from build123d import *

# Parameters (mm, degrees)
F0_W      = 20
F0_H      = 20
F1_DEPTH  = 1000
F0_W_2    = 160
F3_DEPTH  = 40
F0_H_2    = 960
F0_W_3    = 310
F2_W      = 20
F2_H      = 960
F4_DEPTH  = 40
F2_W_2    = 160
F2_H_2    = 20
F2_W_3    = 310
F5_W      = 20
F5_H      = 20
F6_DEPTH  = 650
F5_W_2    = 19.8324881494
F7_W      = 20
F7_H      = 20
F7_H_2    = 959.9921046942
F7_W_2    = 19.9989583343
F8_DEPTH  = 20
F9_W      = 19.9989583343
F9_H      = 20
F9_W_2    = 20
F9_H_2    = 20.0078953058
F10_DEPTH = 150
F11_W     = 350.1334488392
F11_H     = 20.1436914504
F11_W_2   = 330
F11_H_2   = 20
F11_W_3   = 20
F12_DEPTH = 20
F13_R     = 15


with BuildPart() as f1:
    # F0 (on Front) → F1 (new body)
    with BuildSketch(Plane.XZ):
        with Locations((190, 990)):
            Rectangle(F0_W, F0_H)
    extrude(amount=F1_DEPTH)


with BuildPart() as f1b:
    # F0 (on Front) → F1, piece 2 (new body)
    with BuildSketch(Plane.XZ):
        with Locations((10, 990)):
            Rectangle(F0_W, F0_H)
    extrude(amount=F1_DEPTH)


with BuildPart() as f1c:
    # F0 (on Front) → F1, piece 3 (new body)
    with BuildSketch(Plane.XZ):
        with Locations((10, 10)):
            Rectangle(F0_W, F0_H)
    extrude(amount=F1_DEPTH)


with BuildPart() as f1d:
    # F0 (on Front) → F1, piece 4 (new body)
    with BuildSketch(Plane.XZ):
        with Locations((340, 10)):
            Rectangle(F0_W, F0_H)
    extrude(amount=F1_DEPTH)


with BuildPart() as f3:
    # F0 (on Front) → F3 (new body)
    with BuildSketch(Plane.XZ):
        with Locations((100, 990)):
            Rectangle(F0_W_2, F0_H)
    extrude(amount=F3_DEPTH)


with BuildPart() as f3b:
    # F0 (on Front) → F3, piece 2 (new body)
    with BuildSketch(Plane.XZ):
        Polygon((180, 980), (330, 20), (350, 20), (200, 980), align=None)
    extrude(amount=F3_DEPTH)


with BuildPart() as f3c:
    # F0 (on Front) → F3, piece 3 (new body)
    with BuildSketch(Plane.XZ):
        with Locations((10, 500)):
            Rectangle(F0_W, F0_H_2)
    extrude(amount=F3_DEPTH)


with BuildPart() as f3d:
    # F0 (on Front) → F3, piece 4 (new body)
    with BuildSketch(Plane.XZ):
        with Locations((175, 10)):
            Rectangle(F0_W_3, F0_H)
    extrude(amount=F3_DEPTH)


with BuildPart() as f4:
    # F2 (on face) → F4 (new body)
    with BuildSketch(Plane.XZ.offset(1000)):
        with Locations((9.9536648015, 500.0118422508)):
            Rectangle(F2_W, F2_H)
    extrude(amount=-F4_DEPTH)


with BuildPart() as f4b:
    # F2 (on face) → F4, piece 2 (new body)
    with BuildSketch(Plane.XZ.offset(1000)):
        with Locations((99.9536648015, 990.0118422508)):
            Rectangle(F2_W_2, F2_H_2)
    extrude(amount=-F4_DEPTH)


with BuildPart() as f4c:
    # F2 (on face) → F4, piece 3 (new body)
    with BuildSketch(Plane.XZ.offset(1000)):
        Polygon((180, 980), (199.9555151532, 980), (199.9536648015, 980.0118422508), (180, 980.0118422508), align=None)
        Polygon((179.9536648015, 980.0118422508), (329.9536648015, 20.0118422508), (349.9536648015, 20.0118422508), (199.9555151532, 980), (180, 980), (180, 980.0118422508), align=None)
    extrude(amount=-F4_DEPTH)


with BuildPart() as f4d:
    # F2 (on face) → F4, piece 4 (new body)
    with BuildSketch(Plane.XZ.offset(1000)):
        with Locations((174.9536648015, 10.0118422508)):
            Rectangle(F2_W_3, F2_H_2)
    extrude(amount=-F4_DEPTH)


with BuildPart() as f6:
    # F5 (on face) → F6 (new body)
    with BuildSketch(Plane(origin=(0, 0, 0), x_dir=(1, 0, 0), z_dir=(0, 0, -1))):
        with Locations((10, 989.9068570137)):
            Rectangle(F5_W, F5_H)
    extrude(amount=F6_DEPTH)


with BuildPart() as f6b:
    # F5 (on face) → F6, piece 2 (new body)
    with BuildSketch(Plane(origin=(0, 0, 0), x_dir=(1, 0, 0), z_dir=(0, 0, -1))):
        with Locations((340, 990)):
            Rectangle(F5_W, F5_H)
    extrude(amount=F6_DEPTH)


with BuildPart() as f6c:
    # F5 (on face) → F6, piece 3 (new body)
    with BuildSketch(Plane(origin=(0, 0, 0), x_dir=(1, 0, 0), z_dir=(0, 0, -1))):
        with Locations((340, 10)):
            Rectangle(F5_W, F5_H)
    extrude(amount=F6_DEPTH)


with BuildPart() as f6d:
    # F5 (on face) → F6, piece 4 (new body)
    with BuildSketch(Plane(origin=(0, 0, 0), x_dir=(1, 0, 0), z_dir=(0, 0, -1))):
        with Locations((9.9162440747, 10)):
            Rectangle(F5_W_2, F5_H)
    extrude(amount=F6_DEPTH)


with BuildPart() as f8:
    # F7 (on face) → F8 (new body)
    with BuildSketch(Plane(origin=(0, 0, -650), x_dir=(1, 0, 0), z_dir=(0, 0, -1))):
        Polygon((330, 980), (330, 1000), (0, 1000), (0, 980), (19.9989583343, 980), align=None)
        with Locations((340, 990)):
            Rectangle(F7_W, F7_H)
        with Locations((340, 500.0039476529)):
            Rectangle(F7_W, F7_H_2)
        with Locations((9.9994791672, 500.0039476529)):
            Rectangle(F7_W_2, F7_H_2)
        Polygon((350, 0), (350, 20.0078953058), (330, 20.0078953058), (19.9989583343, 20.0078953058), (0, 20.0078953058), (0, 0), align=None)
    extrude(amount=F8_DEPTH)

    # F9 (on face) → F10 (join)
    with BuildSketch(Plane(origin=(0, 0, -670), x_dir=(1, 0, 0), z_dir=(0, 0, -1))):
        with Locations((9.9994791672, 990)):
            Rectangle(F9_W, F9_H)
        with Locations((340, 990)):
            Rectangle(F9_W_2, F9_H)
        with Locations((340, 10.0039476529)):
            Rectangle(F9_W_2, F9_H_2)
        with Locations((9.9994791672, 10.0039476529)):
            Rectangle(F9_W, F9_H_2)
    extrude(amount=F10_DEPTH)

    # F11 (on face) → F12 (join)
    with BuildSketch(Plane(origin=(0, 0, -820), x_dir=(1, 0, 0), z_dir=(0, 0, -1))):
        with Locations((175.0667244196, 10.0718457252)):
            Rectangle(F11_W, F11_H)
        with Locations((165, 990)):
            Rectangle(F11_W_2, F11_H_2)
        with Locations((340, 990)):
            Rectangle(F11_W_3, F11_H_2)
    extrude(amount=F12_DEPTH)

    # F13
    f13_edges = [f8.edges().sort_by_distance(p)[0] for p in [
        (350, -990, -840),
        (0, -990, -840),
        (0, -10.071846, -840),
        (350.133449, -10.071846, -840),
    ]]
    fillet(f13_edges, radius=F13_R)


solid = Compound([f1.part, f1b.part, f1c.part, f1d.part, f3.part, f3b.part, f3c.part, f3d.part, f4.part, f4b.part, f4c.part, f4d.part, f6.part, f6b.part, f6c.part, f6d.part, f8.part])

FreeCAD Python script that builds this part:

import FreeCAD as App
import Part
import Sketcher

V = App.Vector
Q = App.Units.Quantity


def edges_at(feature, points):
    """Names of the edges that pass closest to the given points."""
    edges = feature.Shape.Edges
    near = lambda p: min(range(len(edges)), key=lambda i: edges[i].distToShape(Part.Vertex(*p))[0])
    return sorted({f"Edge{near(p) + 1}" for p in points})


def add_polygon(sketch, points):
    """Adds a closed chain of lines whose ends are joined by coincident constraints."""
    first, n = sketch.GeometryCount, len(points)
    for a, b in zip(points, points[1:] + points[:1]):
        sketch.addGeometry(Part.LineSegment(App.Vector(*a, 0), App.Vector(*b, 0)), False)
    for i in range(n):
        sketch.addConstraint(Sketcher.Constraint("Coincident", first + i, 2, first + (i + 1) % n, 1))

doc = App.newDocument("Part")
body = doc.addObject("PartDesign::Body", "Body")

sketch1 = body.newObject("Sketcher::SketchObject", "Sketch")
sketch1.AttachmentSupport = (doc.getObject("XZ_Plane"), [""])
sketch1.MapMode = "FlatFace"
add_polygon(sketch1, [(180, 1000), (180, 980), (200, 980), (200, 1000)])
sketch1.addConstraint([
    Sketcher.Constraint("Vertical", 0),
    Sketcher.Constraint("Horizontal", 1),
    Sketcher.Constraint("Vertical", 2),
    Sketcher.Constraint("Horizontal", 3),
    Sketcher.Constraint("Equal", 3, 0),
    Sketcher.Constraint("DistanceX", 1, 1, 1, 2, Q("20 mm")),
    Sketcher.Constraint("DistanceX", -1, 1, 0, 2, Q("180 mm")),
    Sketcher.Constraint("DistanceY", -1, 1, 0, 2, Q("980 mm")),
])
pad1 = body.newObject("PartDesign::Pad", "Pad")
pad1.Profile = sketch1
pad1.Length = 1000
body2 = doc.addObject("PartDesign::Body", "Body001")

sketch2 = body2.newObject("Sketcher::SketchObject", "Sketch001")
sketch2.AttachmentSupport = (doc.getObject("XZ_Plane001"), [""])
sketch2.MapMode = "FlatFace"
add_polygon(sketch2, [(0, 1000), (0, 980), (20, 980), (20, 1000)])
sketch2.addConstraint([
    Sketcher.Constraint("Vertical", 0),
    Sketcher.Constraint("Horizontal", 1),
    Sketcher.Constraint("Vertical", 2),
    Sketcher.Constraint("Horizontal", 3),
    Sketcher.Constraint("PointOnObject", 0, 2, -2),
    Sketcher.Constraint("Equal", 3, 0),
    Sketcher.Constraint("DistanceX", 1, 1, 1, 2, Q("20 mm")),
    Sketcher.Constraint("DistanceY", -1, 1, 0, 2, Q("980 mm")),
])
pad2 = body2.newObject("PartDesign::Pad", "Pad001")
pad2.Profile = sketch2
pad2.Length = 1000
body3 = doc.addObject("PartDesign::Body", "Body002")

sketch3 = body3.newObject("Sketcher::SketchObject", "Sketch002")
sketch3.AttachmentSupport = (doc.getObject("XZ_Plane002"), [""])
sketch3.MapMode = "FlatFace"
add_polygon(sketch3, [(0, 20), (0, 0), (20, 0), (20, 20)])
sketch3.addConstraint([
    Sketcher.Constraint("Vertical", 0),
    Sketcher.Constraint("Horizontal", 1),
    Sketcher.Constraint("Vertical", 2),
    Sketcher.Constraint("Horizontal", 3),
    Sketcher.Constraint("Coincident", 0, 2, -1, 1),
    Sketcher.Constraint("Equal", 3, 0),
    Sketcher.Constraint("DistanceX", 1, 1, 1, 2, Q("20 mm")),
])
pad3 = body3.newObject("PartDesign::Pad", "Pad002")
pad3.Profile = sketch3
pad3.Length = 1000
body4 = doc.addObject("PartDesign::Body", "Body003")

sketch4 = body4.newObject("Sketcher::SketchObject", "Sketch003")
sketch4.AttachmentSupport = (doc.getObject("XZ_Plane003"), [""])
sketch4.MapMode = "FlatFace"
add_polygon(sketch4, [(330, 20), (330, 0), (350, 0), (350, 20)])
sketch4.addConstraint([
    Sketcher.Constraint("Vertical", 0),
    Sketcher.Constraint("Horizontal", 1),
    Sketcher.Constraint("Vertical", 2),
    Sketcher.Constraint("Horizontal", 3),
    Sketcher.Constraint("PointOnObject", 0, 2, -1),
    Sketcher.Constraint("Equal", 3, 0),
    Sketcher.Constraint("DistanceX", 1, 1, 1, 2, Q("20 mm")),
    Sketcher.Constraint("DistanceX", -1, 1, 0, 2, Q("330 mm")),
])
pad4 = body4.newObject("PartDesign::Pad", "Pad003")
pad4.Profile = sketch4
pad4.Length = 1000
body5 = doc.addObject("PartDesign::Body", "Body004")

sketch5 = body5.newObject("Sketcher::SketchObject", "Sketch004")
sketch5.AttachmentSupport = (doc.getObject("XZ_Plane004"), [""])
sketch5.MapMode = "FlatFace"
add_polygon(sketch5, [(20, 1000), (20, 980), (180, 980), (180, 1000)])
sketch5.addConstraint([
    Sketcher.Constraint("Vertical", 0),
    Sketcher.Constraint("Horizontal", 1),
    Sketcher.Constraint("Vertical", 2),
    Sketcher.Constraint("Horizontal", 3),
    Sketcher.Constraint("DistanceX", 1, 1, 1, 2, Q("160 mm")),
    Sketcher.Constraint("DistanceY", 0, 2, 0, 1, Q("20 mm")),
    Sketcher.Constraint("DistanceX", -1, 1, 0, 2, Q("20 mm")),
    Sketcher.Constraint("DistanceY", -1, 1, 0, 2, Q("980 mm")),
])
pad5 = body5.newObject("PartDesign::Pad", "Pad004")
pad5.Profile = sketch5
pad5.Length = 40
body6 = doc.addObject("PartDesign::Body", "Body005")

sketch6 = body6.newObject("Sketcher::SketchObject", "Sketch005")
sketch6.AttachmentSupport = (doc.getObject("XZ_Plane005"), [""])
sketch6.MapMode = "FlatFace"
add_polygon(sketch6, [(180, 980), (330, 20), (350, 20), (200, 980)])
sketch6.addConstraint([
    Sketcher.Constraint("Horizontal", 1),
    Sketcher.Constraint("Horizontal", 3),
    Sketcher.Constraint("Parallel", 0, 2),
    Sketcher.Constraint("DistanceX", 1, 1, 1, 2, Q("20 mm")),
    Sketcher.Constraint("DistanceX", -1, 1, 0, 2, Q("330 mm")),
    Sketcher.Constraint("DistanceY", -1, 1, 0, 2, Q("20 mm")),
    Sketcher.Constraint("DistanceX", -1, 1, 2, 2, Q("200 mm")),
    Sketcher.Constraint("DistanceY", -1, 1, 2, 2, Q("980 mm")),
])
pad6 = body6.newObject("PartDesign::Pad", "Pad005")
pad6.Profile = sketch6
pad6.Length = 40
body7 = doc.addObject("PartDesign::Body", "Body006")

sketch7 = body7.newObject("Sketcher::SketchObject", "Sketch006")
sketch7.AttachmentSupport = (doc.getObject("XZ_Plane006"), [""])
sketch7.MapMode = "FlatFace"
add_polygon(sketch7, [(0, 980), (0, 20), (20, 20), (20, 980)])
sketch7.addConstraint([
    Sketcher.Constraint("Vertical", 0),
    Sketcher.Constraint("Horizontal", 1),
    Sketcher.Constraint("Vertical", 2),
    Sketcher.Constraint("Horizontal", 3),
    Sketcher.Constraint("PointOnObject", 0, 2, -2),
    Sketcher.Constraint("DistanceX", 1, 1, 1, 2, Q("20 mm")),
    Sketcher.Constraint("DistanceY", 0, 2, 0, 1, Q("960 mm")),
    Sketcher.Constraint("DistanceY", -1, 1, 0, 2, Q("20 mm")),
])
pad7 = body7.newObject("PartDesign::Pad", "Pad006")
pad7.Profile = sketch7
pad7.Length = 40
body8 = doc.addObject("PartDesign::Body", "Body007")

sketch8 = body8.newObject("Sketcher::SketchObject", "Sketch007")
sketch8.AttachmentSupport = (doc.getObject("XZ_Plane007"), [""])
sketch8.MapMode = "FlatFace"
add_polygon(sketch8, [(20, 20), (20, 0), (330, 0), (330, 20)])
sketch8.addConstraint([
    Sketcher.Constraint("Vertical", 0),
    Sketcher.Constraint("Horizontal", 1),
    Sketcher.Constraint("Vertical", 2),
    Sketcher.Constraint("Horizontal", 3),
    Sketcher.Constraint("PointOnObject", 0, 2, -1),
    Sketcher.Constraint("DistanceX", 1, 1, 1, 2, Q("310 mm")),
    Sketcher.Constraint("DistanceY", 0, 2, 0, 1, Q("20 mm")),
    Sketcher.Constraint("DistanceX", -1, 1, 0, 2, Q("20 mm")),
])
pad8 = body8.newObject("PartDesign::Pad", "Pad007")
pad8.Profile = sketch8
pad8.Length = 40
body9 = doc.addObject("PartDesign::Body", "Body008")

sketch9 = body9.newObject("Sketcher::SketchObject", "Sketch008")
sketch9.AttachmentSupport = (doc.getObject("XZ_Plane008"), [""])
sketch9.MapMode = "FlatFace"
sketch9.AttachmentOffset = App.Placement(V(0, 0, 1000), App.Rotation())
add_polygon(sketch9, [(-0.046335, 980.011842), (-0.046335, 20.011842), (19.953665, 20.011842), (19.953665, 980.011842)])
sketch9.addConstraint([
    Sketcher.Constraint("Vertical", 0),
    Sketcher.Constraint("Horizontal", 1),
    Sketcher.Constraint("Vertical", 2),
    Sketcher.Constraint("Horizontal", 3),
    Sketcher.Constraint("DistanceX", 1, 1, 1, 2, Q("20 mm")),
    Sketcher.Constraint("DistanceY", 0, 2, 0, 1, Q("960 mm")),
    Sketcher.Constraint("DistanceX", 0, 2, -1, 1, Q("0.046335 mm")),
    Sketcher.Constraint("DistanceY", -1, 1, 0, 2, Q("20.011842 mm")),
])
pad9 = body9.newObject("PartDesign::Pad", "Pad008")
pad9.Profile = sketch9
pad9.Length = 40
pad9.Reversed = True
body10 = doc.addObject("PartDesign::Body", "Body009")

sketch10 = body10.newObject("Sketcher::SketchObject", "Sketch009")
sketch10.AttachmentSupport = (doc.getObject("XZ_Plane009"), [""])
sketch10.MapMode = "FlatFace"
sketch10.AttachmentOffset = App.Placement(V(0, 0, 1000), App.Rotation())
add_polygon(sketch10, [(19.953665, 1000.011842), (19.953665, 980.011842), (179.953665, 980.011842), (179.953665, 1000.011842)])
sketch10.addConstraint([
    Sketcher.Constraint("Vertical", 0),
    Sketcher.Constraint("Horizontal", 1),
    Sketcher.Constraint("Vertical", 2),
    Sketcher.Constraint("Horizontal", 3),
    Sketcher.Constraint("DistanceX", 1, 1, 1, 2, Q("160 mm")),
    Sketcher.Constraint("DistanceY", 0, 2, 0, 1, Q("20 mm")),
    Sketcher.Constraint("DistanceX", -1, 1, 0, 2, Q("19.953665 mm")),
    Sketcher.Constraint("DistanceY", -1, 1, 0, 2, Q("980.011842 mm")),
])
pad10 = body10.newObject("PartDesign::Pad", "Pad009")
pad10.Profile = sketch10
pad10.Length = 40
pad10.Reversed = True
body11 = doc.addObject("PartDesign::Body", "Body010")

sketch11 = body11.newObject("Sketcher::SketchObject", "Sketch010")
sketch11.AttachmentSupport = (doc.getObject("XZ_Plane010"), [""])
sketch11.MapMode = "FlatFace"
sketch11.AttachmentOffset = App.Placement(V(0, 0, 1000), App.Rotation())
add_polygon(sketch11, [(199.953665, 980.011842), (179.953665, 980.011842), (329.953665, 20.011842), (349.953665, 20.011842), (199.955515, 980)])
sketch11.addConstraint([
    Sketcher.Constraint("Horizontal", 0),
    Sketcher.Constraint("Horizontal", 2),
    Sketcher.Constraint("Parallel", 1, 3),
    Sketcher.Constraint("Parallel", 3, 4),
    Sketcher.Constraint("DistanceX", 0, 2, 0, 1, Q("20 mm")),
    Sketcher.Constraint("DistanceY", -1, 1, 3, 2, Q("980 mm")),
    Sketcher.Constraint("DistanceX", 0, 2, 1, 2, Q("150 mm")),
    Sketcher.Constraint("DistanceY", 1, 2, 0, 2, Q("960 mm")),
    Sketcher.Constraint("Distance", 3, Q("971.636099 mm")),
    Sketcher.Constraint("DistanceX", -1, 1, 0, 2, Q("179.953665 mm")),
])
pad11 = body11.newObject("PartDesign::Pad", "Pad010")
pad11.Profile = sketch11
pad11.Length = 40
pad11.Reversed = True
body12 = doc.addObject("PartDesign::Body", "Body011")

sketch12 = body12.newObject("Sketcher::SketchObject", "Sketch011")
sketch12.AttachmentSupport = (doc.getObject("XZ_Plane011"), [""])
sketch12.MapMode = "FlatFace"
sketch12.AttachmentOffset = App.Placement(V(0, 0, 1000), App.Rotation())
add_polygon(sketch12, [(19.953665, 20.011842), (19.953665, 0.011842), (329.953665, 0.011842), (329.953665, 20.011842)])
sketch12.addConstraint([
    Sketcher.Constraint("Vertical", 0),
    Sketcher.Constraint("Horizontal", 1),
    Sketcher.Constraint("Vertical", 2),
    Sketcher.Constraint("Horizontal", 3),
    Sketcher.Constraint("DistanceX", 1, 1, 1, 2, Q("310 mm")),
    Sketcher.Constraint("DistanceY", 0, 2, 0, 1, Q("20 mm")),
    Sketcher.Constraint("DistanceX", -1, 1, 0, 2, Q("19.953665 mm")),
    Sketcher.Constraint("DistanceY", -1, 1, 0, 2, Q("0.011842 mm")),
])
pad12 = body12.newObject("PartDesign::Pad", "Pad011")
pad12.Profile = sketch12
pad12.Length = 40
pad12.Reversed = True
body13 = doc.addObject("PartDesign::Body", "Body012")

sketch13 = body13.newObject("Sketcher::SketchObject", "Sketch012")
sketch13.AttachmentSupport = (doc.getObject("XY_Plane012"), [""])
sketch13.MapMode = "FlatFace"
add_polygon(sketch13, [(0, -999.906857), (0, -979.906857), (20, -979.906857), (20, -999.906857)])
sketch13.addConstraint([
    Sketcher.Constraint("Vertical", 0),
    Sketcher.Constraint("Horizontal", 1),
    Sketcher.Constraint("Vertical", 2),
    Sketcher.Constraint("Horizontal", 3),
    Sketcher.Constraint("PointOnObject", 0, 2, -2),
    Sketcher.Constraint("Equal", 3, 0),
    Sketcher.Constraint("DistanceX", 1, 1, 1, 2, Q("20 mm")),
    Sketcher.Constraint("DistanceY", 0, 2, -1, 1, Q("979.906857 mm")),
])
pad13 = body13.newObject("PartDesign::Pad", "Pad012")
pad13.Profile = sketch13
pad13.Length = 650
pad13.Reversed = True
body14 = doc.addObject("PartDesign::Body", "Body013")

sketch14 = body14.newObject("Sketcher::SketchObject", "Sketch013")
sketch14.AttachmentSupport = (doc.getObject("XY_Plane013"), [""])
sketch14.MapMode = "FlatFace"
add_polygon(sketch14, [(330, -1000), (330, -980), (350, -980), (350, -1000)])
sketch14.addConstraint([
    Sketcher.Constraint("Vertical", 0),
    Sketcher.Constraint("Horizontal", 1),
    Sketcher.Constraint("Vertical", 2),
    Sketcher.Constraint("Horizontal", 3),
    Sketcher.Constraint("Equal", 3, 0),
    Sketcher.Constraint("DistanceX", 1, 1, 1, 2, Q("20 mm")),
    Sketcher.Constraint("DistanceX", -1, 1, 0, 2, Q("330 mm")),
    Sketcher.Constraint("DistanceY", 0, 2, -1, 1, Q("980 mm")),
])
pad14 = body14.newObject("PartDesign::Pad", "Pad013")
pad14.Profile = sketch14
pad14.Length = 650
pad14.Reversed = True
body15 = doc.addObject("PartDesign::Body", "Body014")

sketch15 = body15.newObject("Sketcher::SketchObject", "Sketch014")
sketch15.AttachmentSupport = (doc.getObject("XY_Plane014"), [""])
sketch15.MapMode = "FlatFace"
add_polygon(sketch15, [(330, -20), (330, 0), (350, 0), (350, -20)])
sketch15.addConstraint([
    Sketcher.Constraint("Vertical", 0),
    Sketcher.Constraint("Horizontal", 1),
    Sketcher.Constraint("Vertical", 2),
    Sketcher.Constraint("Horizontal", 3),
    Sketcher.Constraint("PointOnObject", 0, 2, -1),
    Sketcher.Constraint("Equal", 3, 0),
    Sketcher.Constraint("DistanceX", 1, 1, 1, 2, Q("20 mm")),
    Sketcher.Constraint("DistanceX", -1, 1, 0, 2, Q("330 mm")),
])
pad15 = body15.newObject("PartDesign::Pad", "Pad014")
pad15.Profile = sketch15
pad15.Length = 650
pad15.Reversed = True
body16 = doc.addObject("PartDesign::Body", "Body015")

sketch16 = body16.newObject("Sketcher::SketchObject", "Sketch015")
sketch16.AttachmentSupport = (doc.getObject("XY_Plane015"), [""])
sketch16.MapMode = "FlatFace"
add_polygon(sketch16, [(0, -20), (0, 0), (19.832488, 0), (19.832488, -20)])
sketch16.addConstraint([
    Sketcher.Constraint("Vertical", 0),
    Sketcher.Constraint("Horizontal", 1),
    Sketcher.Constraint("Vertical", 2),
    Sketcher.Constraint("Horizontal", 3),
    Sketcher.Constraint("Coincident", 0, 2, -1, 1),
    Sketcher.Constraint("DistanceY", 0, 1, 0, 2, Q("20 mm")),
    Sketcher.Constraint("DistanceX", 1, 1, 1, 2, Q("19.832488 mm")),
])
pad16 = body16.newObject("PartDesign::Pad", "Pad015")
pad16.Profile = sketch16
pad16.Length = 650
pad16.Reversed = True
body17 = doc.addObject("PartDesign::Body", "Body016")

sketch17 = body17.newObject("Sketcher::SketchObject", "Sketch016")
sketch17.AttachmentSupport = (doc.getObject("XY_Plane016"), [""])
sketch17.MapMode = "FlatFace"
sketch17.AttachmentOffset = App.Placement(V(0, 0, -650), App.Rotation())
add_polygon(sketch17, [(0, -1000), (0, 0), (350, 0), (350, -1000)])
add_polygon(sketch17, [(19.998958, -20.007895), (19.998958, -980), (330, -980), (330, -20.007895)])
sketch17.addConstraint([
    Sketcher.Constraint("Vertical", 0),
    Sketcher.Constraint("Horizontal", 1),
    Sketcher.Constraint("Vertical", 2),
    Sketcher.Constraint("Horizontal", 3),
    Sketcher.Constraint("Vertical", 4),
    Sketcher.Constraint("Horizontal", 5),
    Sketcher.Constraint("Vertical", 6),
    Sketcher.Constraint("Horizontal", 7),
    Sketcher.Constraint("Coincident", 0, 2, -1, 1),
    Sketcher.Constraint("DistanceX", 1, 1, 1, 2, Q("350 mm")),
    Sketcher.Constraint("DistanceY", 0, 1, 0, 2, Q("1000 mm")),
    Sketcher.Constraint("DistanceY", 4, 2, -1, 1, Q("980 mm")),
    Sketcher.Constraint("DistanceX", -1, 1, 5, 2, Q("330 mm")),
    Sketcher.Constraint("DistanceX", 5, 1, 5, 2, Q("310.001042 mm")),
    Sketcher.Constraint("DistanceY", 4, 2, 4, 1, Q("959.992105 mm")),
])
pad17 = body17.newObject("PartDesign::Pad", "Pad016")
pad17.Profile = sketch17
pad17.Length = 20
pad17.Reversed = True

sketch18 = body17.newObject("Sketcher::SketchObject", "Sketch017")
sketch18.AttachmentSupport = (doc.getObject("XY_Plane016"), [""])
sketch18.MapMode = "FlatFace"
sketch18.AttachmentOffset = App.Placement(V(0, 0, -670), App.Rotation())
add_polygon(sketch18, [(0, -1000), (0, -980), (19.998958, -980), (19.998958, -1000)])
add_polygon(sketch18, [(330, -1000), (330, -980), (350, -980), (350, -1000)])
add_polygon(sketch18, [(330, -20.007895), (330, 0), (350, 0), (350, -20.007895)])
add_polygon(sketch18, [(0, -20.007895), (0, 0), (19.998958, 0), (19.998958, -20.007895)])
sketch18.addConstraint([
    Sketcher.Constraint("Vertical", 0),
    Sketcher.Constraint("Horizontal", 1),
    Sketcher.Constraint("Vertical", 2),
    Sketcher.Constraint("Horizontal", 3),
    Sketcher.Constraint("Vertical", 4),
    Sketcher.Constraint("Horizontal", 5),
    Sketcher.Constraint("Vertical", 6),
    Sketcher.Constraint("Horizontal", 7),
    Sketcher.Constraint("Vertical", 8),
    Sketcher.Constraint("Horizontal", 9),
    Sketcher.Constraint("Vertical", 10),
    Sketcher.Constraint("Horizontal", 11),
    Sketcher.Constraint("Vertical", 12),
    Sketcher.Constraint("Horizontal", 13),
    Sketcher.Constraint("Vertical", 14),
    Sketcher.Constraint("Horizontal", 15),
    Sketcher.Constraint("Coincident", 12, 2, -1, 1),
    Sketcher.Constraint("PointOnObject", 0, 2, -2),
    Sketcher.Constraint("PointOnObject", 8, 2, -1),
    Sketcher.Constraint("Horizontal", 1, 2, 4, 2),
    Sketcher.Constraint("Horizontal", 3, 2, 6, 2),
    Sketcher.Constraint("Horizontal", 11, 2, 14, 2),
    Sketcher.Constraint("Vertical", 7, 2, 8, 2),
    Sketcher.Constraint("Vertical", 6, 2, 9, 2),
    Sketcher.Constraint("Vertical", 2, 2, 13, 2),
    Sketcher.Constraint("Equal", 11, 0),
    Sketcher.Constraint("DistanceX", 5, 1, 5, 2, Q("20 mm")),
    Sketcher.Constraint("DistanceY", 0, 2, -1, 1, Q("980 mm")),
    Sketcher.Constraint("DistanceX", -1, 1, 4, 2, Q("330 mm")),
    Sketcher.Constraint("DistanceX", 1, 1, 1, 2, Q("19.998958 mm")),
    Sketcher.Constraint("DistanceY", 8, 1, 8, 2, Q("20.007895 mm")),
])
pad18 = body17.newObject("PartDesign::Pad", "Pad017")
pad18.Profile = sketch18
pad18.Length = 150
pad18.Reversed = True

sketch19 = body17.newObject("Sketcher::SketchObject", "Sketch018")
sketch19.AttachmentSupport = (doc.getObject("XY_Plane016"), [""])
sketch19.MapMode = "FlatFace"
sketch19.AttachmentOffset = App.Placement(V(0, 0, -820), App.Rotation())
add_polygon(sketch19, [(0, -20.143691), (0, 0), (350.133449, 0), (350.133449, -20.143691)])
add_polygon(sketch19, [(0, -1000), (0, -980), (350, -980), (350, -1000)])
sketch19.addConstraint([
    Sketcher.Constraint("Vertical", 0),
    Sketcher.Constraint("Horizontal", 1),
    Sketcher.Constraint("Vertical", 2),
    Sketcher.Constraint("Horizontal", 3),
    Sketcher.Constraint("Vertical", 4),
    Sketcher.Constraint("Horizontal", 5),
    Sketcher.Constraint("Vertical", 6),
    Sketcher.Constraint("Horizontal", 7),
    Sketcher.Constraint("Coincident", 0, 2, -1, 1),
    Sketcher.Constraint("PointOnObject", 4, 2, -2),
    Sketcher.Constraint("DistanceX", 5, 1, 5, 2, Q("350 mm")),
    Sketcher.Constraint("DistanceY", 4, 1, 4, 2, Q("20 mm")),
    Sketcher.Constraint("DistanceY", 4, 2, -1, 1, Q("980 mm")),
    Sketcher.Constraint("DistanceX", 1, 1, 1, 2, Q("350.133449 mm")),
    Sketcher.Constraint("DistanceY", 0, 1, 0, 2, Q("20.143691 mm")),
])
pad19 = body17.newObject("PartDesign::Pad", "Pad018")
pad19.Profile = sketch19
pad19.Length = 20
pad19.Reversed = True
doc.recompute()

fillet = body17.newObject("PartDesign::Fillet", "Fillet")
fillet.Base = (pad19, edges_at(pad19, [
    (350, -990, -840),
    (0, -990, -840),
    (0, -10.072, -840),
    (350.133, -10.072, -840),
]))
fillet.Radius = 15

doc.recompute()
